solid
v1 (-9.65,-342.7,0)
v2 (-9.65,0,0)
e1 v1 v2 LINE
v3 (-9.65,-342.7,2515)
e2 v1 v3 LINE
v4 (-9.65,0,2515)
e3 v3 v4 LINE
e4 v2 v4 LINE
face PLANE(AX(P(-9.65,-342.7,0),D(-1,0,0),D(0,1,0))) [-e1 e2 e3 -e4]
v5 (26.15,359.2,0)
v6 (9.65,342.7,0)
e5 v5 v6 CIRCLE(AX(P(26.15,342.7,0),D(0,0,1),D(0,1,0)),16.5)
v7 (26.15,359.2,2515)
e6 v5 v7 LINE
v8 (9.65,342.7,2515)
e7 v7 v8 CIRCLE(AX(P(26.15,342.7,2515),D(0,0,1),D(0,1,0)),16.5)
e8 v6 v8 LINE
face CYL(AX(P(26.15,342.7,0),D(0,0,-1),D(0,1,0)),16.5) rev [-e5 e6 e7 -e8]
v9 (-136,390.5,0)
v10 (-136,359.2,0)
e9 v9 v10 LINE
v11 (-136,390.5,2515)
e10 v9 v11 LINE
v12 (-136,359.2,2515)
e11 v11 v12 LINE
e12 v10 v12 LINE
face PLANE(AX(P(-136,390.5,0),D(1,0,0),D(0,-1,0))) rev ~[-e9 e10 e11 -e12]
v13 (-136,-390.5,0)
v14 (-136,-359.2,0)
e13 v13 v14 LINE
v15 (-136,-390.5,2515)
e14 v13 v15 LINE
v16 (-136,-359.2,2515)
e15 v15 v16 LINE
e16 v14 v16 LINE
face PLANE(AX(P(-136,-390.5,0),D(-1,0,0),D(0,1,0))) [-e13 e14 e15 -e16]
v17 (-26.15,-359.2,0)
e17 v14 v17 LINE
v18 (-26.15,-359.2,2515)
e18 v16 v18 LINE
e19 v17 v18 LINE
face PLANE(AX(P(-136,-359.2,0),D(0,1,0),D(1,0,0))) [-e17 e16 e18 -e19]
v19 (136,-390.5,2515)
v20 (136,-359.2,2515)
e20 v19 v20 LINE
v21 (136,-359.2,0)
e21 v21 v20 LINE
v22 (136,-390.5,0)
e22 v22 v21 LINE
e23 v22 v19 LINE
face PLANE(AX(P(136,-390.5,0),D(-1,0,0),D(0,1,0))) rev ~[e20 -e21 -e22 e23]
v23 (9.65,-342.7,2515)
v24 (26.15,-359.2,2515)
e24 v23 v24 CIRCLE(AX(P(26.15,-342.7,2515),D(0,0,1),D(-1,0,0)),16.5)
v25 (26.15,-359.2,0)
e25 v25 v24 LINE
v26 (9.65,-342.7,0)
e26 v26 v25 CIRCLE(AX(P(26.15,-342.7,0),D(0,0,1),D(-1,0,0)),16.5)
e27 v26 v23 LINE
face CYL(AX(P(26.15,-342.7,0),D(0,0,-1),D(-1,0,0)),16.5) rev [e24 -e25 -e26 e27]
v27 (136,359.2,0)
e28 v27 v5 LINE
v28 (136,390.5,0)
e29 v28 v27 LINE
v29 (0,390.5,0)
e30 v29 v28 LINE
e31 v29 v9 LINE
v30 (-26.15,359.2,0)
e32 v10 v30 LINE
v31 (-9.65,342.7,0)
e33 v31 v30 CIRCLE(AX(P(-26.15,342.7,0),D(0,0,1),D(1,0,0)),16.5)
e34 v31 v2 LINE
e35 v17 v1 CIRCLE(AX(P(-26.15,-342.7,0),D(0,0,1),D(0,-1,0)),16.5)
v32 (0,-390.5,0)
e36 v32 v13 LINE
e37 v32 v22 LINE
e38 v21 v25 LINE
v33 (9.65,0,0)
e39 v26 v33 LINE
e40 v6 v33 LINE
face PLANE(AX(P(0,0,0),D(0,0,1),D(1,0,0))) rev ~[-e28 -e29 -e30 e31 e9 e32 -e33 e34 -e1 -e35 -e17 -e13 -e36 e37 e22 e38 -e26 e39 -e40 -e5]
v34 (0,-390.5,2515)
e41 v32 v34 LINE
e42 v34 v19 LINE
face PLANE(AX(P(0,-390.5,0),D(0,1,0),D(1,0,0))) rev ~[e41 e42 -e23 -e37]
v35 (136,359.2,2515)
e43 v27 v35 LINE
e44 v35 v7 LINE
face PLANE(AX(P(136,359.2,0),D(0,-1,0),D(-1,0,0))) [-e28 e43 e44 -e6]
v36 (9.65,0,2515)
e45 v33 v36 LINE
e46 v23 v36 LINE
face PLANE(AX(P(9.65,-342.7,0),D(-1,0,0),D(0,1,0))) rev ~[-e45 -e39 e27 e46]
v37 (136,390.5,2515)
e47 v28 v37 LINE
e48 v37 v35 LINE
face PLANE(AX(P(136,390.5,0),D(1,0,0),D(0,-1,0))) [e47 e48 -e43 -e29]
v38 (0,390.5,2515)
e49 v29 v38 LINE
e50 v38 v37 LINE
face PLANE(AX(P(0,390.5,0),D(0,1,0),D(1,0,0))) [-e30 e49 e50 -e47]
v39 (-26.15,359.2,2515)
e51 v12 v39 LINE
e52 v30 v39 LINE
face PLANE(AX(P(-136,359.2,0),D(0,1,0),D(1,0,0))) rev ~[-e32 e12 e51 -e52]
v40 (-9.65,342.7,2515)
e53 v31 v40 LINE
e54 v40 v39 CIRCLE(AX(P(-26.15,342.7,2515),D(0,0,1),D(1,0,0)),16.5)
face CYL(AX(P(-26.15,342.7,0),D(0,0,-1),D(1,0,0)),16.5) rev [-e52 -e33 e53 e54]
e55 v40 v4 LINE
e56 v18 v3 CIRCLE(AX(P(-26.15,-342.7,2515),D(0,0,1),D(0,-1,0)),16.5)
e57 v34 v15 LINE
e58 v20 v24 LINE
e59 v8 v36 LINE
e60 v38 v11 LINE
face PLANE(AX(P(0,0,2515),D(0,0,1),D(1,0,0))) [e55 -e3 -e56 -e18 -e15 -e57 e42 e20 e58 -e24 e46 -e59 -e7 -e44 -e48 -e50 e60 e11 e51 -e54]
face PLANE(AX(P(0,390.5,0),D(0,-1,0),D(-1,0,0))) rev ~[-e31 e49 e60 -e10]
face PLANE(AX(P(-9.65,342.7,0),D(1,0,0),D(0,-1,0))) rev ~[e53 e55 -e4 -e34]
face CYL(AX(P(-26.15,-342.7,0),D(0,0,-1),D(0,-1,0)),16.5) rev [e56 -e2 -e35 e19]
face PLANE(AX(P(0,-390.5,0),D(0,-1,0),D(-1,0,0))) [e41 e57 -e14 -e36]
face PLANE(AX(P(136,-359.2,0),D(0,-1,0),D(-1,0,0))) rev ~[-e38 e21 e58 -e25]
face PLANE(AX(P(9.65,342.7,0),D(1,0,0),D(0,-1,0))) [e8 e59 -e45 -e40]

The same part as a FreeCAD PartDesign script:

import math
import FreeCAD as App
import Part
import Sketcher
from FreeCAD import Vector

doc = App.newDocument("Part")
body = doc.addObject("PartDesign::Body", "Body")

# Sketch on XY plane
sketch1 = doc.addObject("Sketcher::SketchObject", "Sketch")
body.addObject(sketch1)
sketch1.AttachmentSupport = (doc.XY_Plane, [""])
sketch1.MapMode = "FlatFace"
sketch1.addGeometry([
    Part.LineSegment(Vector(-136, -359, 0), Vector(-136, -390, 0)),  # 0
    Part.LineSegment(Vector(-136, -390, 0), Vector(136, -390, 0)),  # 1
    Part.LineSegment(Vector(136, -390, 0), Vector(136, -359, 0)),  # 2
    Part.LineSegment(Vector(136, -359, 0), Vector(26, -359, 0)),  # 3
    Part.ArcOfCircle(Part.Circle(Vector(26, -343, 0), Vector(0, 0, 1), 16), math.radians(180), math.radians(270)),  # 4
    Part.LineSegment(Vector(10, -343, 0), Vector(10, 343, 0)),  # 5
    Part.ArcOfCircle(Part.Circle(Vector(26, 343, 0), Vector(0, 0, 1), 16), math.radians(90), math.radians(180)),  # 6
    Part.LineSegment(Vector(26, 359, 0), Vector(136, 359, 0)),  # 7
    Part.LineSegment(Vector(136, 359, 0), Vector(136, 390, 0)),  # 8
    Part.LineSegment(Vector(136, 390, 0), Vector(-136, 390, 0)),  # 9
    Part.LineSegment(Vector(-136, 390, 0), Vector(-136, 359, 0)),  # 10
    Part.LineSegment(Vector(-136, 359, 0), Vector(-26, 359, 0)),  # 11
    Part.ArcOfCircle(Part.Circle(Vector(-26, 343, 0), Vector(0, 0, 1), 16), math.radians(0), math.radians(90)),  # 12
    Part.LineSegment(Vector(-10, 343, 0), Vector(-10, -343, 0)),  # 13
    Part.ArcOfCircle(Part.Circle(Vector(-26, -343, 0), Vector(0, 0, 1), 16), math.radians(-90), math.radians(0)),  # 14
    Part.LineSegment(Vector(-26, -359, 0), Vector(-136, -359, 0)),  # 15
], False)
sketch1.addConstraint([
    Sketcher.Constraint("Coincident", 0, 2, 1, 1),
    Sketcher.Constraint("Coincident", 1, 2, 2, 1),
    Sketcher.Constraint("Coincident", 2, 2, 3, 1),
    Sketcher.Constraint("Tangent", 3, 2, 4, 2),
    Sketcher.Constraint("Tangent", 4, 1, 5, 1),
    Sketcher.Constraint("Tangent", 5, 2, 6, 2),
    Sketcher.Constraint("Tangent", 6, 1, 7, 1),
    Sketcher.Constraint("Coincident", 7, 2, 8, 1),
    Sketcher.Constraint("Coincident", 8, 2, 9, 1),
    Sketcher.Constraint("Coincident", 9, 2, 10, 1),
    Sketcher.Constraint("Coincident", 10, 2, 11, 1),
    Sketcher.Constraint("Tangent", 11, 2, 12, 2),
    Sketcher.Constraint("Tangent", 12, 1, 13, 1),
    Sketcher.Constraint("Tangent", 13, 2, 14, 2),
    Sketcher.Constraint("Tangent", 14, 1, 15, 1),
    Sketcher.Constraint("Coincident", 15, 2, 0, 1),
    Sketcher.Constraint("Vertical", 0),
    Sketcher.Constraint("Horizontal", 1),
    Sketcher.Constraint("Vertical", 2),
    Sketcher.Constraint("Horizontal", 3),
    Sketcher.Constraint("Vertical", 5),
    Sketcher.Constraint("Horizontal", 7),
    Sketcher.Constraint("Vertical", 8),
    Sketcher.Constraint("Horizontal", 9),
    Sketcher.Constraint("Vertical", 10),
    Sketcher.Constraint("Horizontal", 11),
    Sketcher.Constraint("Vertical", 13),
    Sketcher.Constraint("Horizontal", 15),
    Sketcher.Constraint("Equal", 4, 6),
    Sketcher.Constraint("Equal", 6, 12),
    Sketcher.Constraint("Equal", 12, 14),
    Sketcher.Constraint("Symmetric", 4, 3, 12, 3, -1, 1),
    Sketcher.Constraint("Symmetric", 0, 2, 8, 2, -1, 1),
    Sketcher.Constraint("Symmetric", 7, 2, 10, 2, -2),
    Sketcher.Constraint("Symmetric", 2, 2, 15, 2, -2),
    Sketcher.Constraint("Radius", 4, 16.5),
    Sketcher.Constraint("DistanceY", 0, 2, 0, 1, 31.3),
    Sketcher.Constraint("DistanceX", 0, 2, -1, 1, 136.0),
    Sketcher.Constraint("DistanceY", 0, 2, -1, 1, 390.5),
    Sketcher.Constraint("DistanceX", -1, 1, 4, 1, 9.65),
])
pad1 = doc.addObject("PartDesign::Pad", "Pad")
body.addObject(pad1)
pad1.Profile = sketch1
pad1.Length = 2515

doc.recompute()
